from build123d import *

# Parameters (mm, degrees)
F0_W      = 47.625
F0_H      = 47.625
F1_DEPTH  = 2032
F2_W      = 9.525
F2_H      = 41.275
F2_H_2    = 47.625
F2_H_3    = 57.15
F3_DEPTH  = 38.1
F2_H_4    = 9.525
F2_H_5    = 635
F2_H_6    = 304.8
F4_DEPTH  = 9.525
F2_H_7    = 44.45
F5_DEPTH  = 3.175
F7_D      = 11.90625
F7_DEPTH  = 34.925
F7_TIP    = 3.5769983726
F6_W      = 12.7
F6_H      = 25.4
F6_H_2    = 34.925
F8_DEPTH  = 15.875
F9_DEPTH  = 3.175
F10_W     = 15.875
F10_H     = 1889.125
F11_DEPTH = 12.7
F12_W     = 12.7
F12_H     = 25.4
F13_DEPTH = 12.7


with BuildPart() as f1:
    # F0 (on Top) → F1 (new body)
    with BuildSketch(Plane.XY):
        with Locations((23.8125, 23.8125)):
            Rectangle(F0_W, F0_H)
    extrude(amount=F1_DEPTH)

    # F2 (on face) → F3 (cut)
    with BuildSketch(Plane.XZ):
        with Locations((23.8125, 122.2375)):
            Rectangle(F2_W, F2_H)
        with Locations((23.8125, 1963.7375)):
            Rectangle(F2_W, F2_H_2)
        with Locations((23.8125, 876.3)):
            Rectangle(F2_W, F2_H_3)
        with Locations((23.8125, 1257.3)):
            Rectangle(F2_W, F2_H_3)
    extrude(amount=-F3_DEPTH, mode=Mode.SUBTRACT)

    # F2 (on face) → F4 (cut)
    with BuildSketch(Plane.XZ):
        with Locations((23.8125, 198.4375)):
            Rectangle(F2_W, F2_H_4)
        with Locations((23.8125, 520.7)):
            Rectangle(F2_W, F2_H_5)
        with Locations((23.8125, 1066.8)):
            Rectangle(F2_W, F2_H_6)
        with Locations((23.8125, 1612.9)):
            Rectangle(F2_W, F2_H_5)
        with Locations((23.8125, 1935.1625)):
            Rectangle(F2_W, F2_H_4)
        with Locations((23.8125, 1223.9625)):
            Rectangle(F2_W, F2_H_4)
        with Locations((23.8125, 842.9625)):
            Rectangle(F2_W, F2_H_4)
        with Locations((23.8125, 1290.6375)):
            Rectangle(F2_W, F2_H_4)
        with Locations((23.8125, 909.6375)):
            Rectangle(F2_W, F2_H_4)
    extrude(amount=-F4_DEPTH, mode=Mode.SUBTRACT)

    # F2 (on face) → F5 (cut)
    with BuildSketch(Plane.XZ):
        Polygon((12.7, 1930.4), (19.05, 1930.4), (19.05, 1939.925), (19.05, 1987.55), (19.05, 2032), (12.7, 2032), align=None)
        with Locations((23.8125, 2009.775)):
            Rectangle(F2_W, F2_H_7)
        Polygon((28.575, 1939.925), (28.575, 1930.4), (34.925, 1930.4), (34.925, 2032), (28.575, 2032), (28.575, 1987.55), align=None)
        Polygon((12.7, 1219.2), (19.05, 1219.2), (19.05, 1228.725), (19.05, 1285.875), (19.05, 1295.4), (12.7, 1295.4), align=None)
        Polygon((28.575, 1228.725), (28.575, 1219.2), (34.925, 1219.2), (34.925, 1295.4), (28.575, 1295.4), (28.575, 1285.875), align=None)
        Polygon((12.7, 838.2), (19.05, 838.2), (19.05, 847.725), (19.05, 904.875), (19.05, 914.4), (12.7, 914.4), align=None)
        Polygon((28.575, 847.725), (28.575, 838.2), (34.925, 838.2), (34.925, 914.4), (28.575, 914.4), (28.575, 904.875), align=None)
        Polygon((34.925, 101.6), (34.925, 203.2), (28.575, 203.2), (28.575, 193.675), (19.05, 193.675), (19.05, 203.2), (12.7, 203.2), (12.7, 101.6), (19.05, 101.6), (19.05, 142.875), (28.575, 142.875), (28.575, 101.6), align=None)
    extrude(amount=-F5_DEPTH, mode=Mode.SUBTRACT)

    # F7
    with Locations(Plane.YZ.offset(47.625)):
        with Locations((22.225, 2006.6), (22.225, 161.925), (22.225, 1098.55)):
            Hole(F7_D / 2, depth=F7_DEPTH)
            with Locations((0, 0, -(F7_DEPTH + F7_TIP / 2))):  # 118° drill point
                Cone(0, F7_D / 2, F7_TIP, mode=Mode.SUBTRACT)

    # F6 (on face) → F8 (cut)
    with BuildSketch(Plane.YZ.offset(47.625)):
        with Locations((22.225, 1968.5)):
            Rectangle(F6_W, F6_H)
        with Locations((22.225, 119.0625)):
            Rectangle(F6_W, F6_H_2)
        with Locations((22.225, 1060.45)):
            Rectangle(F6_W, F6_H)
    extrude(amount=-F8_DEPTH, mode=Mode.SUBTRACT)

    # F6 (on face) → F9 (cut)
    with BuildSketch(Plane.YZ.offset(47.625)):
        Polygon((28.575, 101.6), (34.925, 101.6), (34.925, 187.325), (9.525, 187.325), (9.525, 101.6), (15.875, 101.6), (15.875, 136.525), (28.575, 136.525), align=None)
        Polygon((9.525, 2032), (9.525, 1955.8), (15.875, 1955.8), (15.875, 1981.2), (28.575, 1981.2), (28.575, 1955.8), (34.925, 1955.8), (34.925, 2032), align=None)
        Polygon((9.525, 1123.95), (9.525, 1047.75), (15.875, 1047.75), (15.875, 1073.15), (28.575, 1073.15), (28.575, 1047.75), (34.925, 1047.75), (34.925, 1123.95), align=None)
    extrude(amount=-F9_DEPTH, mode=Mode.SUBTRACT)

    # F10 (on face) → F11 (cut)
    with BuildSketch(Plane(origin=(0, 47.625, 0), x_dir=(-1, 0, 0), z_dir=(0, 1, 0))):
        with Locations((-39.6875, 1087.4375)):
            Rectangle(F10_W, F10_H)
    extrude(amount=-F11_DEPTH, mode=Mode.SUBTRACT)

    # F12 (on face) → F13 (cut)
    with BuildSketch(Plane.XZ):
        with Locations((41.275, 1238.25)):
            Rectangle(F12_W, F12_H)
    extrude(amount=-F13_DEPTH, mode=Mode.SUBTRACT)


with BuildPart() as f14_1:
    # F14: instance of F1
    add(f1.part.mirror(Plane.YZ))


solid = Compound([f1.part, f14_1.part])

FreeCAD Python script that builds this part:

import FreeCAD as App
import Part
import Sketcher
from FreeCAD import Vector
Q = App.Units.Quantity


def add_polygon(sketch, points):
    """Adds a closed chain of lines whose ends are joined by coincident constraints."""
    first, n = sketch.GeometryCount, len(points)
    for a, b in zip(points, points[1:] + points[:1]):
        sketch.addGeometry(Part.LineSegment(App.Vector(*a, 0), App.Vector(*b, 0)), False)
    for i in range(n):
        sketch.addConstraint(Sketcher.Constraint("Coincident", first + i, 2, first + (i + 1) % n, 1))

doc = App.newDocument("Part")
body = doc.addObject("PartDesign::Body", "Body")

# Sketch on XY plane
sketch1 = doc.addObject("Sketcher::SketchObject", "Sketch")
body.addObject(sketch1)
sketch1.AttachmentSupport = (doc.XY_Plane, [""])
sketch1.MapMode = "FlatFace"
add_polygon(sketch1, [(0, 48), (0, 0), (48, 0), (48, 48)])  # lines 0-3
sketch1.addConstraint([
    Sketcher.Constraint("Vertical", 0),
    Sketcher.Constraint("Horizontal", 1),
    Sketcher.Constraint("Vertical", 2),
    Sketcher.Constraint("Horizontal", 3),
    Sketcher.Constraint("Coincident", 0, 2, -1, 1),
    Sketcher.Constraint("Equal", 3, 0),
    Sketcher.Constraint("DistanceX", 1, 1, 1, 2, Q("1.875 in")),
])
pad1 = doc.addObject("PartDesign::Pad", "Pad")
body.addObject(pad1)
pad1.Profile = sketch1
pad1.Length = Q("80 in")

# Sketch on XZ plane
sketch2 = doc.addObject("Sketcher::SketchObject", "Sketch001")
body.addObject(sketch2)
sketch2.AttachmentSupport = (doc.XZ_Plane, [""])
sketch2.MapMode = "FlatFace"
add_polygon(sketch2, [(19, 143), (19, 102), (29, 102), (29, 143)])  # lines 0-3
add_polygon(sketch2, [(19, 1988), (19, 1940), (29, 1940), (29, 1988)])  # lines 4-7
add_polygon(sketch2, [(19, 905), (19, 848), (29, 848), (29, 905)])  # lines 8-11
add_polygon(sketch2, [(19, 1286), (19, 1229), (29, 1229), (29, 1286)])  # lines 12-15
sketch2.addConstraint([
    Sketcher.Constraint("Vertical", 0),
    Sketcher.Constraint("Horizontal", 1),
    Sketcher.Constraint("Vertical", 2),
    Sketcher.Constraint("Horizontal", 3),
    Sketcher.Constraint("Vertical", 4),
    Sketcher.Constraint("Horizontal", 5),
    Sketcher.Constraint("Vertical", 6),
    Sketcher.Constraint("Horizontal", 7),
    Sketcher.Constraint("Vertical", 8),
    Sketcher.Constraint("Horizontal", 9),
    Sketcher.Constraint("Vertical", 10),
    Sketcher.Constraint("Horizontal", 11),
    Sketcher.Constraint("Vertical", 12),
    Sketcher.Constraint("Horizontal", 13),
    Sketcher.Constraint("Vertical", 14),
    Sketcher.Constraint("Horizontal", 15),
    Sketcher.Constraint("Vertical", 3, 2, 4, 2),
    Sketcher.Constraint("Vertical", 2, 2, 5, 2),
    Sketcher.Constraint("Vertical", 7, 2, 8, 2),
    Sketcher.Constraint("Vertical", 6, 2, 9, 2),
    Sketcher.Constraint("Vertical", 11, 2, 12, 2),
    Sketcher.Constraint("Vertical", 10, 2, 13, 2),
    Sketcher.Constraint("Equal", 10, 12),
    Sketcher.Constraint("DistanceY", -1, 1, 0, 2, Q("4 in")),
    Sketcher.Constraint("DistanceY", 8, 2, 4, 2, Q("43 in")),
    Sketcher.Constraint("DistanceY", 2, 2, 10, 2, Q("30 in")),
    Sketcher.Constraint("DistanceY", 8, 2, 12, 2, Q("15 in")),
    Sketcher.Constraint("DistanceY", 8, 2, 8, 1, Q("2.25 in")),
    Sketcher.Constraint("DistanceX", 1, 1, 1, 2, Q("0.375 in")),
    Sketcher.Constraint("DistanceY", 0, 2, 0, 1, Q("1.625 in")),
    Sketcher.Constraint("DistanceY", 4, 2, 4, 1, Q("1.875 in")),
    Sketcher.Constraint("DistanceX", -1, 1, 0, 2, Q("0.75 in")),
])
pocket1 = doc.addObject("PartDesign::Pocket", "Pocket")
body.addObject(pocket1)
pocket1.Profile = sketch2
pocket1.Length = Q("1.5 in")

# Sketch on XZ plane
sketch3 = doc.addObject("Sketcher::SketchObject", "Sketch002")
body.addObject(sketch3)
sketch3.AttachmentSupport = (doc.XZ_Plane, [""])
sketch3.MapMode = "FlatFace"
add_polygon(sketch3, [(19, 194), (29, 194), (29, 848), (19, 848)])  # lines 0-3
add_polygon(sketch3, [(29, 1229), (19, 1229), (19, 905), (29, 905)])  # lines 4-7
add_polygon(sketch3, [(29, 1940), (19, 1940), (19, 1286), (29, 1286)])  # lines 8-11
sketch3.addConstraint([
    Sketcher.Constraint("Horizontal", 0),
    Sketcher.Constraint("Vertical", 1),
    Sketcher.Constraint("Horizontal", 2),
    Sketcher.Constraint("Vertical", 3),
    Sketcher.Constraint("Horizontal", 4),
    Sketcher.Constraint("Vertical", 5),
    Sketcher.Constraint("Horizontal", 6),
    Sketcher.Constraint("Vertical", 7),
    Sketcher.Constraint("Horizontal", 8),
    Sketcher.Constraint("Vertical", 9),
    Sketcher.Constraint("Horizontal", 10),
    Sketcher.Constraint("Vertical", 11),
    Sketcher.Constraint("Vertical", 3, 2, 4, 2),
    Sketcher.Constraint("Vertical", 1, 2, 6, 2),
    Sketcher.Constraint("Vertical", 5, 2, 8, 2),
    Sketcher.Constraint("Vertical", 7, 2, 10, 2),
    Sketcher.Constraint("Equal", 3, 9),
    Sketcher.Constraint("DistanceY", 2, 2, 4, 2, Q("15 in")),
    Sketcher.Constraint("DistanceY", 3, 2, 5, 2, Q("28 in")),
    Sketcher.Constraint("DistanceY", 4, 2, 8, 2, Q("28 in")),
    Sketcher.Constraint("DistanceY", 1, 1, 1, 2, Q("25.75 in")),
    Sketcher.Constraint("DistanceX", 0, 1, 0, 2, Q("0.375 in")),
    Sketcher.Constraint("DistanceX", -1, 1, 2, 2, Q("0.75 in")),
    Sketcher.Constraint("DistanceY", -1, 1, 0, 2, Q("7.625 in")),
])
pocket2 = doc.addObject("PartDesign::Pocket", "Pocket001")
body.addObject(pocket2)
pocket2.Profile = sketch3
pocket2.Length = Q("0.375 in")

# Sketch on XZ plane
sketch4 = doc.addObject("Sketcher::SketchObject", "Sketch003")
body.addObject(sketch4)
sketch4.AttachmentSupport = (doc.XZ_Plane, [""])
sketch4.MapMode = "FlatFace"
add_polygon(sketch4, [(13, 1930), (19, 1930), (19, 1988), (29, 1988), (29, 1930), (35, 1930), (35, 2032), (13, 2032)])  # lines 0-7
add_polygon(sketch4, [(13, 1219), (19, 1219), (19, 1295), (13, 1295)])  # lines 8-11
add_polygon(sketch4, [(29, 1219), (35, 1219), (35, 1295), (29, 1295)])  # lines 12-15
add_polygon(sketch4, [(13, 838), (19, 838), (19, 914), (13, 914)])  # lines 16-19
add_polygon(sketch4, [(29, 838), (35, 838), (35, 914), (29, 914)])  # lines 20-23
add_polygon(sketch4, [(35, 102), (35, 203), (29, 203), (29, 194), (19, 194), (19, 203), (13, 203), (13, 102), (19, 102), (19, 143), (29, 143), (29, 102)])  # lines 24-35
sketch4.addConstraint([
    Sketcher.Constraint("Horizontal", 0),
    Sketcher.Constraint("Vertical", 1),
    Sketcher.Constraint("Horizontal", 2),
    Sketcher.Constraint("Vertical", 3),
    Sketcher.Constraint("Horizontal", 4),
    Sketcher.Constraint("Vertical", 5),
    Sketcher.Constraint("Horizontal", 6),
    Sketcher.Constraint("Vertical", 7),
    Sketcher.Constraint("Horizontal", 8),
    Sketcher.Constraint("Vertical", 9),
    Sketcher.Constraint("Horizontal", 10),
    Sketcher.Constraint("Vertical", 11),
    Sketcher.Constraint("Horizontal", 12),
    Sketcher.Constraint("Vertical", 13),
    Sketcher.Constraint("Horizontal", 14),
    Sketcher.Constraint("Vertical", 15),
    Sketcher.Constraint("Horizontal", 16),
    Sketcher.Constraint("Vertical", 17),
    Sketcher.Constraint("Horizontal", 18),
    Sketcher.Constraint("Vertical", 19),
    Sketcher.Constraint("Horizontal", 20),
    Sketcher.Constraint("Vertical", 21),
    Sketcher.Constraint("Horizontal", 22),
    Sketcher.Constraint("Vertical", 23),
    Sketcher.Constraint("Vertical", 24),
    Sketcher.Constraint("Horizontal", 25),
    Sketcher.Constraint("Vertical", 26),
    Sketcher.Constraint("Horizontal", 27),
    Sketcher.Constraint("Vertical", 28),
    Sketcher.Constraint("Horizontal", 29),
    Sketcher.Constraint("Vertical", 30),
    Sketcher.Constraint("Horizontal", 31),
    Sketcher.Constraint("Vertical", 32),
    Sketcher.Constraint("Horizontal", 33),
    Sketcher.Constraint("Vertical", 34),
    Sketcher.Constraint("Horizontal", 35),
    Sketcher.Constraint("Horizontal", 0, 2, 3, 2),
    Sketcher.Constraint("Horizontal", 11, 2, 12, 2),
    Sketcher.Constraint("Horizontal", 10, 2, 13, 2),
    Sketcher.Constraint("Horizontal", 19, 2, 20, 2),
    Sketcher.Constraint("Horizontal", 18, 2, 21, 2),
    Sketcher.Constraint("Horizontal", 25, 2, 28, 2),
    Sketcher.Constraint("Horizontal", 31, 2, 34, 2),
    Sketcher.Constraint("Vertical", 1, 2, 8, 2),
    Sketcher.Constraint("Vertical", 7, 2, 10, 2),
    Sketcher.Constraint("Vertical", 5, 2, 12, 2),
    Sketcher.Constraint("Vertical", 3, 2, 14, 2),
    Sketcher.Constraint("Vertical", 9, 2, 16, 2),
    Sketcher.Constraint("Vertical", 11, 2, 18, 2),
    Sketcher.Constraint("Vertical", 13, 2, 20, 2),
    Sketcher.Constraint("Vertical", 15, 2, 22, 2),
    Sketcher.Constraint("Vertical", 21, 2, 24, 2),
    Sketcher.Constraint("Vertical", 23, 2, 25, 2),
    Sketcher.Constraint("Vertical", 17, 2, 27, 2),
    Sketcher.Constraint("Vertical", 19, 2, 29, 2),
    Sketcher.Constraint("Vertical", 28, 2, 31, 2),
    Sketcher.Constraint("Vertical", 26, 2, 33, 2),
    Sketcher.Constraint("Equal", 0, 4),
    Sketcher.Constraint("Equal", 15, 17),
    Sketcher.Constraint("Equal", 7, 24),
    Sketcher.Constraint("Equal", 33, 26),
    Sketcher.Constraint("DistanceY", 5, 1, 5, 2, Q("4 in")),
    Sketcher.Constraint("DistanceY", 9, 1, 9, 2, Q("3 in")),
    Sketcher.Constraint("DistanceY", -1, 1, 0, 2, Q("76 in")),
    Sketcher.Constraint("DistanceY", -1, 1, 8, 2, Q("48 in")),
    Sketcher.Constraint("DistanceY", -1, 1, 16, 2, Q("33 in")),
    Sketcher.Constraint("DistanceY", -1, 1, 24, 2, Q("8 in")),
    Sketcher.Constraint("DistanceY", 32, 2, 27, 2, Q("2 in")),
    Sketcher.Constraint("DistanceX", 0, 1, 0, 2, Q("0.25 in")),
    Sketcher.Constraint("DistanceY", 1, 1, 1, 2, Q("2.25 in")),
    Sketcher.Constraint("DistanceX", -1, 1, 6, 2, Q("0.5 in")),
    Sketcher.Constraint("DistanceX", 2, 1, 2, 2, Q("0.375 in")),
])
pocket3 = doc.addObject("PartDesign::Pocket", "Pocket002")
body.addObject(pocket3)
pocket3.Profile = sketch4
pocket3.Length = Q("0.125 in")

# Sketch on YZ plane
sketch5 = doc.addObject("Sketcher::SketchObject", "Sketch004")
body.addObject(sketch5)
sketch5.AttachmentSupport = (doc.YZ_Plane, [""])
sketch5.MapMode = "FlatFace"
sketch5.AttachmentOffset = App.Placement(Vector(0, 0, 1.875 * 25.4), App.Rotation())
sketch5.addGeometry([
    Part.Circle(Vector(22, 2007, 0), Vector(0, 0, 1), 6),
    Part.Circle(Vector(22, 162, 0), Vector(0, 0, 1), 6),
    Part.Circle(Vector(22, 1099, 0), Vector(0, 0, 1), 6),
], False)
sketch5.addConstraint([
    Sketcher.Constraint("Equal", 0, 1),
    Sketcher.Constraint("Equal", 1, 2),
    Sketcher.Constraint("Vertical", 0, 3, 1, 3),
    Sketcher.Constraint("Vertical", 1, 3, 2, 3),
    Sketcher.Constraint("Diameter", 0, Q("0.46875 in")),
    Sketcher.Constraint("DistanceY", -1, 1, 0, 3, Q("79 in")),
    Sketcher.Constraint("DistanceY", -1, 1, 2, 3, Q("43.25 in")),
    Sketcher.Constraint("DistanceX", -1, 1, 0, 3, Q("0.875 in")),
    Sketcher.Constraint("DistanceY", -1, 1, 1, 3, Q("6.375 in")),
])
doc.recompute()
hole = doc.addObject("PartDesign::Hole", "Hole")
body.addObject(hole)
hole.Profile = sketch5
hole.ThreadType = "None"
hole.Diameter = Q("0.46875 in")
hole.DepthType = "Dimension"
hole.Depth = Q("1.375 in")
hole.DrillPoint = "Angled"
hole.DrillPointAngle = 118

# Sketch on YZ plane
sketch6 = doc.addObject("Sketcher::SketchObject", "Sketch005")
body.addObject(sketch6)
sketch6.AttachmentSupport = (doc.YZ_Plane, [""])
sketch6.MapMode = "FlatFace"
sketch6.AttachmentOffset = App.Placement(Vector(0, 0, 1.875 * 25.4), App.Rotation())
add_polygon(sketch6, [(16, 1981), (16, 1956), (29, 1956), (29, 1981)])  # lines 0-3
add_polygon(sketch6, [(16, 137), (16, 102), (29, 102), (29, 137)])  # lines 4-7
add_polygon(sketch6, [(16, 1073), (16, 1048), (29, 1048), (29, 1073)])  # lines 8-11
sketch6.addConstraint([
    Sketcher.Constraint("Vertical", 0),
    Sketcher.Constraint("Horizontal", 1),
    Sketcher.Constraint("Vertical", 2),
    Sketcher.Constraint("Horizontal", 3),
    Sketcher.Constraint("Vertical", 4),
    Sketcher.Constraint("Horizontal", 5),
    Sketcher.Constraint("Vertical", 6),
    Sketcher.Constraint("Horizontal", 7),
    Sketcher.Constraint("Vertical", 8),
    Sketcher.Constraint("Horizontal", 9),
    Sketcher.Constraint("Vertical", 10),
    Sketcher.Constraint("Horizontal", 11),
    Sketcher.Constraint("Vertical", 3, 2, 4, 2),
    Sketcher.Constraint("Vertical", 2, 2, 5, 2),
    Sketcher.Constraint("Vertical", 7, 2, 8, 2),
    Sketcher.Constraint("Vertical", 6, 2, 9, 2),
    Sketcher.Constraint("Equal", 2, 8),
    Sketcher.Constraint("DistanceY", 0, 2, 0, 1, Q("1 in")),
    Sketcher.Constraint("DistanceX", 1, 1, 1, 2, Q("0.5 in")),
    Sketcher.Constraint("DistanceY", -1, 1, 0, 2, Q("77 in")),
    Sketcher.Constraint("DistanceY", -1, 1, 4, 2, Q("4 in")),
    Sketcher.Constraint("DistanceY", 4, 2, 4, 1, Q("1.375 in")),
    Sketcher.Constraint("DistanceY", -1, 1, 8, 2, Q("41.25 in")),
    Sketcher.Constraint("DistanceX", -1, 1, 0, 2, Q("0.625 in")),
])
pocket4 = doc.addObject("PartDesign::Pocket", "Pocket003")
body.addObject(pocket4)
pocket4.Profile = sketch6
pocket4.Length = Q("0.625 in")

# Sketch on YZ plane
sketch7 = doc.addObject("Sketcher::SketchObject", "Sketch006")
body.addObject(sketch7)
sketch7.AttachmentSupport = (doc.YZ_Plane, [""])
sketch7.MapMode = "FlatFace"
sketch7.AttachmentOffset = App.Placement(Vector(0, 0, 1.875 * 25.4), App.Rotation())
add_polygon(sketch7, [(29, 102), (35, 102), (35, 187), (10, 187), (10, 102), (16, 102), (16, 137), (29, 137)])  # lines 0-7
add_polygon(sketch7, [(10, 2032), (10, 1956), (16, 1956), (16, 1981), (29, 1981), (29, 1956), (35, 1956), (35, 2032)])  # lines 8-15
add_polygon(sketch7, [(10, 1124), (10, 1048), (16, 1048), (16, 1073), (29, 1073), (29, 1048), (35, 1048), (35, 1124)])  # lines 16-23
sketch7.addConstraint([
    Sketcher.Constraint("Horizontal", 0),
    Sketcher.Constraint("Vertical", 1),
    Sketcher.Constraint("Horizontal", 2),
    Sketcher.Constraint("Vertical", 3),
    Sketcher.Constraint("Horizontal", 4),
    Sketcher.Constraint("Vertical", 5),
    Sketcher.Constraint("Horizontal", 6),
    Sketcher.Constraint("Vertical", 7),
    Sketcher.Constraint("Vertical", 8),
    Sketcher.Constraint("Horizontal", 9),
    Sketcher.Constraint("Vertical", 10),
    Sketcher.Constraint("Horizontal", 11),
    Sketcher.Constraint("Vertical", 12),
    Sketcher.Constraint("Horizontal", 13),
    Sketcher.Constraint("Vertical", 14),
    Sketcher.Constraint("Horizontal", 15),
    Sketcher.Constraint("Vertical", 16),
    Sketcher.Constraint("Horizontal", 17),
    Sketcher.Constraint("Vertical", 18),
    Sketcher.Constraint("Horizontal", 19),
    Sketcher.Constraint("Vertical", 20),
    Sketcher.Constraint("Horizontal", 21),
    Sketcher.Constraint("Vertical", 22),
    Sketcher.Constraint("Horizontal", 23),
    Sketcher.Constraint("Horizontal", 0, 2, 3, 2),
    Sketcher.Constraint("Horizontal", 9, 2, 12, 2),
    Sketcher.Constraint("Horizontal", 17, 2, 20, 2),
    Sketcher.Constraint("Vertical", 3, 2, 8, 2),
    Sketcher.Constraint("Vertical", 5, 2, 9, 2),
    Sketcher.Constraint("Vertical", 7, 2, 11, 2),
    Sketcher.Constraint("Vertical", 1, 2, 13, 2),
    Sketcher.Constraint("Vertical", 15, 2, 16, 2),
    Sketcher.Constraint("Vertical", 10, 2, 17, 2),
    Sketcher.Constraint("Vertical", 12, 2, 19, 2),
    Sketcher.Constraint("Vertical", 14, 2, 21, 2),
    Sketcher.Constraint("Equal", 0, 4),
    Sketcher.Constraint("Equal", 23, 10),
    Sketcher.Constraint("Equal", 14, 16),
    Sketcher.Constraint("Equal", 12, 18),
    Sketcher.Constraint("DistanceX", 2, 2, 2, 1, Q("1 in")),
    Sketcher.Constraint("DistanceY", 8, 2, 8, 1, Q("3 in")),
    Sketcher.Constraint("DistanceX", 6, 1, 6, 2, Q("0.5 in")),
    Sketcher.Constraint("DistanceY", -1, 1, 0, 2, Q("4 in")),
    Sketcher.Constraint("DistanceY", -1, 1, 8, 2, Q("77 in")),
    Sketcher.Constraint("DistanceY", 5, 2, 2, 2, Q("2 in")),
    Sketcher.Constraint("DistanceY", 1, 1, 1, 2, Q("3.375 in")),
    Sketcher.Constraint("DistanceY", -1, 1, 16, 2, Q("41.25 in")),
    Sketcher.Constraint("DistanceX", -1, 1, 0, 2, Q("1.375 in")),
])
pocket5 = doc.addObject("PartDesign::Pocket", "Pocket004")
body.addObject(pocket5)
pocket5.Profile = sketch7
pocket5.Length = Q("0.125 in")

# Sketch on XZ plane
sketch8 = doc.addObject("Sketcher::SketchObject", "Sketch007")
body.addObject(sketch8)
sketch8.AttachmentSupport = (doc.XZ_Plane, [""])
sketch8.MapMode = "FlatFace"
sketch8.AttachmentOffset = App.Placement(Vector(0, 0, -1.875 * 25.4), App.Rotation())
add_polygon(sketch8, [(48, 2032), (48, 143), (32, 143), (32, 2032)])  # lines 0-3
sketch8.addConstraint([
    Sketcher.Constraint("Vertical", 0),
    Sketcher.Constraint("Horizontal", 1),
    Sketcher.Constraint("Vertical", 2),
    Sketcher.Constraint("Horizontal", 3),
    Sketcher.Constraint("DistanceY", -1, 1, 2, 2, Q("80 in")),
    Sketcher.Constraint("DistanceX", 1, 2, 1, 1, Q("0.625 in")),
    Sketcher.Constraint("DistanceY", 0, 2, 0, 1, Q("74.375 in")),
    Sketcher.Constraint("DistanceX", -1, 1, 1, 2, Q("1.25 in")),
])
pocket6 = doc.addObject("PartDesign::Pocket", "Pocket005")
body.addObject(pocket6)
pocket6.Profile = sketch8
pocket6.Length = Q("0.5 in")
pocket6.Reversed = True

# Sketch on XZ plane
sketch9 = doc.addObject("Sketcher::SketchObject", "Sketch008")
body.addObject(sketch9)
sketch9.AttachmentSupport = (doc.XZ_Plane, [""])
sketch9.MapMode = "FlatFace"
add_polygon(sketch9, [(35, 1251), (35, 1226), (48, 1226), (48, 1251)])  # lines 0-3
sketch9.addConstraint([
    Sketcher.Constraint("Vertical", 0),
    Sketcher.Constraint("Horizontal", 1),
    Sketcher.Constraint("Vertical", 2),
    Sketcher.Constraint("Horizontal", 3),
    Sketcher.Constraint("DistanceY", 0, 2, 0, 1, Q("1 in")),
    Sketcher.Constraint("DistanceX", 1, 1, 1, 2, Q("0.5 in")),
    Sketcher.Constraint("DistanceY", -1, 1, 0, 2, Q("48.25 in")),
    Sketcher.Constraint("DistanceX", -1, 1, 0, 2, Q("1.375 in")),
])
pocket7 = doc.addObject("PartDesign::Pocket", "Pocket006")
body.addObject(pocket7)
pocket7.Profile = sketch9
pocket7.Length = Q("0.5 in")
body2 = doc.addObject("PartDesign::Body", "Body001")
doc.recompute()

mirroring = doc.addObject("Part::Mirroring", "Mirroring")
mirroring.Source = body
mirroring.Base = Vector(0, 0, 0)
mirroring.Normal = Vector(1, 0, 0)
body2.BaseFeature = mirroring
doc.recompute()
mirroring.Visibility = False

doc.recompute()
